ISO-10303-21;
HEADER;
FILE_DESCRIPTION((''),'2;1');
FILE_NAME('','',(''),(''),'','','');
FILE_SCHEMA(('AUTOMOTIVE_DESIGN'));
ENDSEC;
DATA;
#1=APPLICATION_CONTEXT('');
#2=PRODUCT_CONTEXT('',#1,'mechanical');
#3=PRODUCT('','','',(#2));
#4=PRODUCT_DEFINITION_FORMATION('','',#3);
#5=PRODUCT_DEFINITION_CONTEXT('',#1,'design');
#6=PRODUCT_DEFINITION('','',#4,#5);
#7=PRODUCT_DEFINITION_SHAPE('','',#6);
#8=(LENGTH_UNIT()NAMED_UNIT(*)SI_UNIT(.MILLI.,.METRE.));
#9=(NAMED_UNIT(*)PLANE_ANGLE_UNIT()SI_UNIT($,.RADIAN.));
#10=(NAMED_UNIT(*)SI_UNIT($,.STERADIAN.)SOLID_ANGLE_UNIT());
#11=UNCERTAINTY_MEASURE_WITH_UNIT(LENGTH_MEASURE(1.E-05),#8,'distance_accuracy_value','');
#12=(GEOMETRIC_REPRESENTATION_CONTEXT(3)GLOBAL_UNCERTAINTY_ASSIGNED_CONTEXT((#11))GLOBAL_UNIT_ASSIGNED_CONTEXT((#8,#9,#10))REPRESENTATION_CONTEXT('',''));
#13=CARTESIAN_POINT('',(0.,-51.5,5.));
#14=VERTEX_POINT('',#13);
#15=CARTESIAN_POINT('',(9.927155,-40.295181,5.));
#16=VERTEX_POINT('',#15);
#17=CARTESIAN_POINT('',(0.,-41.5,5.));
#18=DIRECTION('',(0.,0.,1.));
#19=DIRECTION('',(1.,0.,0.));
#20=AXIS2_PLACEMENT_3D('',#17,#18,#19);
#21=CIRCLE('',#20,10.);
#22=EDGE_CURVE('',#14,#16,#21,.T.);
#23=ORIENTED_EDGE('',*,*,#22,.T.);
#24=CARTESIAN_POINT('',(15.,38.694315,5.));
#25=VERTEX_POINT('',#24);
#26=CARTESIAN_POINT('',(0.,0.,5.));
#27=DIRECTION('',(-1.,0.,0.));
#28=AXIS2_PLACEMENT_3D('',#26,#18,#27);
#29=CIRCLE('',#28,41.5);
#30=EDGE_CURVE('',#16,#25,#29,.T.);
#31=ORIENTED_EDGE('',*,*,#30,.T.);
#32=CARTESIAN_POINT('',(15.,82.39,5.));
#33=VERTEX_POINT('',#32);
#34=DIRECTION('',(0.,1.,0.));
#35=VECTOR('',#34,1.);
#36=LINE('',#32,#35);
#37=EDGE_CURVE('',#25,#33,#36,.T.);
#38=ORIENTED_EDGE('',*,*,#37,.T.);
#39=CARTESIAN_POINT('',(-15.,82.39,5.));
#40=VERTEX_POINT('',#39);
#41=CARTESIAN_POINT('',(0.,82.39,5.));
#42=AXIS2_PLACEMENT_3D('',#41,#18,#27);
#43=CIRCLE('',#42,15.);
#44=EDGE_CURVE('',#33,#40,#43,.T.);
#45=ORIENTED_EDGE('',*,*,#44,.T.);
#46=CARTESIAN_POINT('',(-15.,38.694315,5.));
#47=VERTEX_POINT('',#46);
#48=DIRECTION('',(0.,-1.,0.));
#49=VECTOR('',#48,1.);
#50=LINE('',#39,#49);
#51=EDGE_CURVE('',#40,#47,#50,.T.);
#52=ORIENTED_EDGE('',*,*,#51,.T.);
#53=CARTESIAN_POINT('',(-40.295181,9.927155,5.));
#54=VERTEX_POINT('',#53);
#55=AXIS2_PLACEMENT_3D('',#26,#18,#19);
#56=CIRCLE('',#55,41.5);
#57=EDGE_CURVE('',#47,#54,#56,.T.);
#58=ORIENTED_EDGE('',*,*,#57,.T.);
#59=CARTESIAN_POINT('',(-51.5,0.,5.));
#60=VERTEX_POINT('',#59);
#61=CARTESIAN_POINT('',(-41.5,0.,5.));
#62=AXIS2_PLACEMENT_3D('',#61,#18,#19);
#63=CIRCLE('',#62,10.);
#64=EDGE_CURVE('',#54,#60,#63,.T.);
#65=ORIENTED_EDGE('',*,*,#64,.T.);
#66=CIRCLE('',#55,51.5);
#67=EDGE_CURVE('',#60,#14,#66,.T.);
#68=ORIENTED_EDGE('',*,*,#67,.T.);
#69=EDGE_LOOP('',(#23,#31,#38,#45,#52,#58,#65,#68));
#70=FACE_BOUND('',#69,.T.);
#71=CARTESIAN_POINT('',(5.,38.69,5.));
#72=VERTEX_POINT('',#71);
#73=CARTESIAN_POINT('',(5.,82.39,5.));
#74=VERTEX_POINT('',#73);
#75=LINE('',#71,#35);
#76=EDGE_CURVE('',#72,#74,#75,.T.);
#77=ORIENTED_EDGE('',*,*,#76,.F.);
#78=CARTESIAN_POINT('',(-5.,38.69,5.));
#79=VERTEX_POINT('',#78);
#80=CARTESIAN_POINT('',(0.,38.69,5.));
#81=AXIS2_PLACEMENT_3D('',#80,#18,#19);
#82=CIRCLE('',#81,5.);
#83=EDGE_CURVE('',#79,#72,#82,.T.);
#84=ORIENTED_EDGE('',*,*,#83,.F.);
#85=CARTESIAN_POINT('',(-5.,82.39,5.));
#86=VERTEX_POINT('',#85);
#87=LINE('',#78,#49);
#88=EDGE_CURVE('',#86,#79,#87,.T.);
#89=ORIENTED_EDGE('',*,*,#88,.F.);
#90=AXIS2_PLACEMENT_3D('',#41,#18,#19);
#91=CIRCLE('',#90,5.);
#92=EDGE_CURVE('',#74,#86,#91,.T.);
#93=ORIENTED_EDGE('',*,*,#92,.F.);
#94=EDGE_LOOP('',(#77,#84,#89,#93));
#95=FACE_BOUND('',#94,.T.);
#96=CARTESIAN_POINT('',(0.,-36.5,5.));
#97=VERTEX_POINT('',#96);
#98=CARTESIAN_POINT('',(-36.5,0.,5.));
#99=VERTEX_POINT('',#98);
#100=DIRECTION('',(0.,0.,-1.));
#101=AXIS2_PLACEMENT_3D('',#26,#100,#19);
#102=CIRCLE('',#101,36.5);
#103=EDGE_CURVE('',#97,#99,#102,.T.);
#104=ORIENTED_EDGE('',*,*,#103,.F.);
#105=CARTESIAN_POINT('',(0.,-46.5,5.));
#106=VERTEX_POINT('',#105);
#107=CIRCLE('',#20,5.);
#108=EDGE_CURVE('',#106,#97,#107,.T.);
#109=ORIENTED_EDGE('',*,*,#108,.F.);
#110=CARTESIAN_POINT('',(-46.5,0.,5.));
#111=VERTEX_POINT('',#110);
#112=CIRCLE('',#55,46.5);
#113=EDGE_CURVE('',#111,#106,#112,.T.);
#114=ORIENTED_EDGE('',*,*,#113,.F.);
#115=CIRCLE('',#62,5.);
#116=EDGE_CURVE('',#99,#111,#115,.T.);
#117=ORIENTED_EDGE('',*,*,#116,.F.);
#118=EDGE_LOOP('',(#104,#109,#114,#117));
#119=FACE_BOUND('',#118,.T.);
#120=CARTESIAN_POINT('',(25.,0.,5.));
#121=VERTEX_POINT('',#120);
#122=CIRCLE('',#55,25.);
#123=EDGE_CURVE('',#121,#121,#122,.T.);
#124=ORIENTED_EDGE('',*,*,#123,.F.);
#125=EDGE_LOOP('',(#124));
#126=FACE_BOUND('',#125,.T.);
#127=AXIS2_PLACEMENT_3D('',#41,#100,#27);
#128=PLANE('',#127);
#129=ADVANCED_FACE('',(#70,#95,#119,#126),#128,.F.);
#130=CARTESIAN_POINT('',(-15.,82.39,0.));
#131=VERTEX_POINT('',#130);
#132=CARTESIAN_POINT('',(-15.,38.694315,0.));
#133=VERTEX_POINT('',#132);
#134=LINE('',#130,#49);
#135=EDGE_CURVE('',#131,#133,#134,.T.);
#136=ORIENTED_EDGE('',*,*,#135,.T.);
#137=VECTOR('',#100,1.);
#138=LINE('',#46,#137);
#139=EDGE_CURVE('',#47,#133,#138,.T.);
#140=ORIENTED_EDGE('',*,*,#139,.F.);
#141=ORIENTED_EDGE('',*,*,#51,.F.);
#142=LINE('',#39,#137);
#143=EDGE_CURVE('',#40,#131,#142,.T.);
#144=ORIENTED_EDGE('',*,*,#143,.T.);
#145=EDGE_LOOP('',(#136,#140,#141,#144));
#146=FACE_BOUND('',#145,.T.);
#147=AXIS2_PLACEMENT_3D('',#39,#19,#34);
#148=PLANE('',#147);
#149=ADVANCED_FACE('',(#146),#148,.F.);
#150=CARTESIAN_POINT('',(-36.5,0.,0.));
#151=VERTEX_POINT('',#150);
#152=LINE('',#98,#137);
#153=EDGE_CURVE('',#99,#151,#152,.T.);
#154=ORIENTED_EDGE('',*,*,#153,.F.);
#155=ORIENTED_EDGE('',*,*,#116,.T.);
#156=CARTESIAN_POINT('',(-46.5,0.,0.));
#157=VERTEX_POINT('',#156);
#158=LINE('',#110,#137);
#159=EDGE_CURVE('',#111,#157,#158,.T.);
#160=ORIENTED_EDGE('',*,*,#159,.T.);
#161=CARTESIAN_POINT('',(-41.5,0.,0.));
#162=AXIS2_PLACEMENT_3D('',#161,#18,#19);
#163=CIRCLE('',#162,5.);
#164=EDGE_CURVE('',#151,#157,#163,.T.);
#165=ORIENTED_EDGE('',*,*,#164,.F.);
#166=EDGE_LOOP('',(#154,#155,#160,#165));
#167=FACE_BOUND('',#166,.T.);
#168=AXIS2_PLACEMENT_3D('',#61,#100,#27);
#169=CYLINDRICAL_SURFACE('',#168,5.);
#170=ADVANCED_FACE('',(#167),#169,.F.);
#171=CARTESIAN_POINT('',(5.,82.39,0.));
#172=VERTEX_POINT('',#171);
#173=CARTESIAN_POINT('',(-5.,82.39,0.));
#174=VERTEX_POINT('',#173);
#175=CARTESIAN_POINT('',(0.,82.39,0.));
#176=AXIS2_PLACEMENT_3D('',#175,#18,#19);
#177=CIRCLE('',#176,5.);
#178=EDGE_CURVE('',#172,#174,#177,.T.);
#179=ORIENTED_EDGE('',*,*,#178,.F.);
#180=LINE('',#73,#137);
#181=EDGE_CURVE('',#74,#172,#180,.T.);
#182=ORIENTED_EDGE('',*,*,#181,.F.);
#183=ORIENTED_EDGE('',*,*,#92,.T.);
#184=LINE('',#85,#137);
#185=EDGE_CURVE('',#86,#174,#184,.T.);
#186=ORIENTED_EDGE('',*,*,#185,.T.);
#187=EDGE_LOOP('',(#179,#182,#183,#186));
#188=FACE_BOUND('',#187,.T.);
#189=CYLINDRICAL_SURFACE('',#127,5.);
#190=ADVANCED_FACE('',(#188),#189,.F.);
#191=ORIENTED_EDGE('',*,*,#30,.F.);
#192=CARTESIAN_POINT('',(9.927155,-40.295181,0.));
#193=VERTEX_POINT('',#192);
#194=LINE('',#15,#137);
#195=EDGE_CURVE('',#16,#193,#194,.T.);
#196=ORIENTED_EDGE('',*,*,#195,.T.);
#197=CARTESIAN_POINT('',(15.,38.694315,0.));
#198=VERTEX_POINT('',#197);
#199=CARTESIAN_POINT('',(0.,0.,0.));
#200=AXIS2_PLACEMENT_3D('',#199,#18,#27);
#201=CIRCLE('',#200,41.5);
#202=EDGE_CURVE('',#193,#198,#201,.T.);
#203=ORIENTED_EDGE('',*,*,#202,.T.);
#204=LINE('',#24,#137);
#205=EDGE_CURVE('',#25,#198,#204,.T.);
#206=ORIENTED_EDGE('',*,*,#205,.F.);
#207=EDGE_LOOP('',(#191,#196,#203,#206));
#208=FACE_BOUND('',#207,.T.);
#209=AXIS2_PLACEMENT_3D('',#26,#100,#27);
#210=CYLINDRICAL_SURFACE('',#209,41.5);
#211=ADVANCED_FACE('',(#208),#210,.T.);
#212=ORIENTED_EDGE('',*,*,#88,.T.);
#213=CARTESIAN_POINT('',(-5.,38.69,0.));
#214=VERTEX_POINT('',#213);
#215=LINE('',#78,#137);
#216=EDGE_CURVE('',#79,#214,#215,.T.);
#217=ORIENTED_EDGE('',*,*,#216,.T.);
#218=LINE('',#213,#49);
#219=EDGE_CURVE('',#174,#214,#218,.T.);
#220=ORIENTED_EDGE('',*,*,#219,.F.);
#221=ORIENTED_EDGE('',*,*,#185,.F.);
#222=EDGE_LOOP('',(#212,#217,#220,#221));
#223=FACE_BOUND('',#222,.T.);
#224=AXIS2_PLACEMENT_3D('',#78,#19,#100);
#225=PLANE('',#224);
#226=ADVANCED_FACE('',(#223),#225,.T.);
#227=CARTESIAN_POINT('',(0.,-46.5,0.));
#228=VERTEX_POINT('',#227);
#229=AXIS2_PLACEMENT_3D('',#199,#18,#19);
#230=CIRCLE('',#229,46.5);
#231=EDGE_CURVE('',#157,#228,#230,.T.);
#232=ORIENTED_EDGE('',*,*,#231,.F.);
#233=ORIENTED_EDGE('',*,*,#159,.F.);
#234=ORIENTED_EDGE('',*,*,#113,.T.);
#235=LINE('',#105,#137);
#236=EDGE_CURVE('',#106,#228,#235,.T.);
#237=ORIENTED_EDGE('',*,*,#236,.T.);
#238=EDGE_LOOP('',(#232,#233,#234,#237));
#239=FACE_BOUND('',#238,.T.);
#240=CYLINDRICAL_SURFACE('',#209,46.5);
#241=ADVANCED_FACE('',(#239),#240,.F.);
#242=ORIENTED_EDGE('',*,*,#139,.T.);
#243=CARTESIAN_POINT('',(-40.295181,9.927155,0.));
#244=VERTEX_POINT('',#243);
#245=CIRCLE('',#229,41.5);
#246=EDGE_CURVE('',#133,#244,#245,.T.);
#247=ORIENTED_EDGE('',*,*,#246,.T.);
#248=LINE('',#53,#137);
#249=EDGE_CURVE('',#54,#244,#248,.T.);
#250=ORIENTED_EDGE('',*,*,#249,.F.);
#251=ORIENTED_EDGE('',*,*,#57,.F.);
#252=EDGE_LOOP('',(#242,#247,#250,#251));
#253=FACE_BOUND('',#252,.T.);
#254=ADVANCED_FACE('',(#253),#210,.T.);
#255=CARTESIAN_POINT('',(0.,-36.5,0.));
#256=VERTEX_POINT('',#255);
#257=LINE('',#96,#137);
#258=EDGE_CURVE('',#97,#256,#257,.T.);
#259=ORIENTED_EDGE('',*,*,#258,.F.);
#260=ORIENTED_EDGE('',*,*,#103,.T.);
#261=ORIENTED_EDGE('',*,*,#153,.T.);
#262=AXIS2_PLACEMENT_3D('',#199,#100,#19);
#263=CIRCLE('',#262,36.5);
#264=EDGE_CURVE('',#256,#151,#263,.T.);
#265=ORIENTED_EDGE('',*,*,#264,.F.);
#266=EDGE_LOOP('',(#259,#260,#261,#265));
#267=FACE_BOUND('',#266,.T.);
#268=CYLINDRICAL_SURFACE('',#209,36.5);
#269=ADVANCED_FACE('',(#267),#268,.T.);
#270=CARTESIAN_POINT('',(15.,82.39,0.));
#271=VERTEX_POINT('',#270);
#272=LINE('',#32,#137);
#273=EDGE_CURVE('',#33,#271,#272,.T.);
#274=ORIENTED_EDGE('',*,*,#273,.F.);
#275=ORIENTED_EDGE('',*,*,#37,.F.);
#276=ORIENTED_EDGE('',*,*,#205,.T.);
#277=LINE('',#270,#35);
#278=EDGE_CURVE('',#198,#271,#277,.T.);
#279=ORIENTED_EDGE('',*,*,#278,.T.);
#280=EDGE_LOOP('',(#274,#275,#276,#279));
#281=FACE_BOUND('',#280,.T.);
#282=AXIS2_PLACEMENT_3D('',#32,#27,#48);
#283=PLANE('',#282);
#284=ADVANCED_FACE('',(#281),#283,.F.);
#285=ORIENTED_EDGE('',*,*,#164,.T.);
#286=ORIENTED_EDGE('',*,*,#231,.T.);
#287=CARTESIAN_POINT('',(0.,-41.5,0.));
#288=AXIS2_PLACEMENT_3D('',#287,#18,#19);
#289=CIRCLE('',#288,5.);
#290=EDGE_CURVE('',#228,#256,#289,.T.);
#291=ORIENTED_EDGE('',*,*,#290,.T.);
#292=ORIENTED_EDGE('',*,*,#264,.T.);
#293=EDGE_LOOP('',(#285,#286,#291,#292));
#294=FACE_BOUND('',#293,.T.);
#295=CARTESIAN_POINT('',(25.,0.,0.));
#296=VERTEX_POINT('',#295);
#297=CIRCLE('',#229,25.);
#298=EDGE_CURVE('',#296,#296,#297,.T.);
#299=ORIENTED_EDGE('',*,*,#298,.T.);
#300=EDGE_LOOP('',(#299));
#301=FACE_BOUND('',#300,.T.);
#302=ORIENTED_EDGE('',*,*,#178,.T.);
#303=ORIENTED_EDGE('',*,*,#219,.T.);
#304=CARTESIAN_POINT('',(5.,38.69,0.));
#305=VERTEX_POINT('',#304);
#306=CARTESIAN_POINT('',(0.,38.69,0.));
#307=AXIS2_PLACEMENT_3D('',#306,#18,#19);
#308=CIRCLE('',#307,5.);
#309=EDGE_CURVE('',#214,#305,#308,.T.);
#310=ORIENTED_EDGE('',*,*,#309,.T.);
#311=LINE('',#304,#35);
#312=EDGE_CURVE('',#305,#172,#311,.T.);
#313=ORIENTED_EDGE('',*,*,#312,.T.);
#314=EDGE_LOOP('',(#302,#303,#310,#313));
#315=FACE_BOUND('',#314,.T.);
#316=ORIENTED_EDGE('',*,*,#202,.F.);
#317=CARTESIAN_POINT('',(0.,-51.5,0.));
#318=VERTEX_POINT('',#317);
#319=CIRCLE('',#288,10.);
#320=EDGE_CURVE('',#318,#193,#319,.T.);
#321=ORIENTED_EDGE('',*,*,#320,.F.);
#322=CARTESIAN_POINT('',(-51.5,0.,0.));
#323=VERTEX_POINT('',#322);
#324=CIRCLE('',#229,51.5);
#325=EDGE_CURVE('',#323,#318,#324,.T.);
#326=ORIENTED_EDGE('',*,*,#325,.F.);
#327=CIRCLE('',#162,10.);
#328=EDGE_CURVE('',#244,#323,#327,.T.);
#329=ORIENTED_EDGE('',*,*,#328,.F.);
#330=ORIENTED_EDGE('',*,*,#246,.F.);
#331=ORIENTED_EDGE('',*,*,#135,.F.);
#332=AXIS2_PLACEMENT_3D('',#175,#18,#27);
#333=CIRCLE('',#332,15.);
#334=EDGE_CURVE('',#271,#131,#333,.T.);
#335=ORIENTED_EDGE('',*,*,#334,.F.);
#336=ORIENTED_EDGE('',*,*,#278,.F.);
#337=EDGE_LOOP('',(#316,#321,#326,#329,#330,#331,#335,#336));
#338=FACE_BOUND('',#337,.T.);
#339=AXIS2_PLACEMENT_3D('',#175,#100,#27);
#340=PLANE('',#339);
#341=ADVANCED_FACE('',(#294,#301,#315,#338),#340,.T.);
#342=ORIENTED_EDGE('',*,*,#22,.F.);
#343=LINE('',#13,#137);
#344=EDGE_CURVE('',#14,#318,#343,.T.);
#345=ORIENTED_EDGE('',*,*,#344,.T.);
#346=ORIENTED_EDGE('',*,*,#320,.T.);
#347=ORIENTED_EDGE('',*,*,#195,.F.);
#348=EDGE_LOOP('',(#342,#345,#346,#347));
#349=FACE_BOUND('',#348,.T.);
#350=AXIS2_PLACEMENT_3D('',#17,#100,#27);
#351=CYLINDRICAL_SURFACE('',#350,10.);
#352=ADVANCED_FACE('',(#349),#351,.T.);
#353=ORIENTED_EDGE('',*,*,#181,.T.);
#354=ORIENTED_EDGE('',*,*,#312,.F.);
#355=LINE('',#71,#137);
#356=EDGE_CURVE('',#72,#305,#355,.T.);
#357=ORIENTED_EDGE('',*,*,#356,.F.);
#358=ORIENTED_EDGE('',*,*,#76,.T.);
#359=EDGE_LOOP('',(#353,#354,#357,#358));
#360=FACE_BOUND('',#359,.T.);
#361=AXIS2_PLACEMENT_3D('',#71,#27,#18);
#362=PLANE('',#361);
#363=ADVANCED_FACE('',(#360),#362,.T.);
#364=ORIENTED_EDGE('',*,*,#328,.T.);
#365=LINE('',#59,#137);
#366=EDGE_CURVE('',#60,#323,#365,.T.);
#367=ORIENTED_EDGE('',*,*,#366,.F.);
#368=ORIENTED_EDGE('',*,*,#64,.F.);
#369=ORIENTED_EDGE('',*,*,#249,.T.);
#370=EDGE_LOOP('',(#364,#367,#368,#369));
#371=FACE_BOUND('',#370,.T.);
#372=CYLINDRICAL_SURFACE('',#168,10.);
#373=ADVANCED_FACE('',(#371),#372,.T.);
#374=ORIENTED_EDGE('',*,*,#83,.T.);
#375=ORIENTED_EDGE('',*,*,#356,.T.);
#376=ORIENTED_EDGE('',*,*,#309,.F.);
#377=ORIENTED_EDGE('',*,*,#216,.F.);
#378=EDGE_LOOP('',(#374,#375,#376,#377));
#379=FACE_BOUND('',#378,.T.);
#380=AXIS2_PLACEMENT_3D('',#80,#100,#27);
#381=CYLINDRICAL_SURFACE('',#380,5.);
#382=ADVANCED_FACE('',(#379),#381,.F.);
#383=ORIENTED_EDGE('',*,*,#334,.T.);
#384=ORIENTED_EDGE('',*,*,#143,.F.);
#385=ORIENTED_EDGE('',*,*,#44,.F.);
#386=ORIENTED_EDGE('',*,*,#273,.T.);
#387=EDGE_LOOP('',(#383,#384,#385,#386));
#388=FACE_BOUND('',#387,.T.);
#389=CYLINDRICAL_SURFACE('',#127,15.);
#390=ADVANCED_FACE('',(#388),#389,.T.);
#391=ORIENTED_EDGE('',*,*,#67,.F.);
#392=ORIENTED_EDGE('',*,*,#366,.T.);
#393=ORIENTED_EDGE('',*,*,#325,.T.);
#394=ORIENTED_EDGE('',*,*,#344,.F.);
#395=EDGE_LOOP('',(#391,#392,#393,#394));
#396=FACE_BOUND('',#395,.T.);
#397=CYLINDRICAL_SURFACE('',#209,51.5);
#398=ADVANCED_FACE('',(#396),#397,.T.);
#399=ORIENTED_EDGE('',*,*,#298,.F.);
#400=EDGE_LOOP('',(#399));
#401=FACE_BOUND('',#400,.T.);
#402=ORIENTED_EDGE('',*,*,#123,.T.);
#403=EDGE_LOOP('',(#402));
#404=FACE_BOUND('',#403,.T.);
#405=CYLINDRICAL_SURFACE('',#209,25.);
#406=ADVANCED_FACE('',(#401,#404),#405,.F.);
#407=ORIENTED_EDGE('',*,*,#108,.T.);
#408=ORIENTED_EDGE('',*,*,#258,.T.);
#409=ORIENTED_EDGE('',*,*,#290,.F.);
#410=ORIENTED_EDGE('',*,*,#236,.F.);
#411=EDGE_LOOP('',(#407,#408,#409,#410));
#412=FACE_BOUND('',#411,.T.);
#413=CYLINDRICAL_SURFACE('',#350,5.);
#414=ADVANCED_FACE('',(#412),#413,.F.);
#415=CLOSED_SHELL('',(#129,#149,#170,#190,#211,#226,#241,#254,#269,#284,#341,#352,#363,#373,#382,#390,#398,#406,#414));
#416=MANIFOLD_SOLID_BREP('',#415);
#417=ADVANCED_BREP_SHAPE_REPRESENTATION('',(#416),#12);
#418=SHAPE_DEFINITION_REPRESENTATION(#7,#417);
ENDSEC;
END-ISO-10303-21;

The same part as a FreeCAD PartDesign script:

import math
import FreeCAD as App
import Part
import Sketcher

V = App.Vector

doc = App.newDocument("Part")
body = doc.addObject("PartDesign::Body", "Body")

# Sketch on XY plane
sketch1 = body.newObject("Sketcher::SketchObject", "Sketch")
sketch1.AttachmentSupport = (doc.getObject("XY_Plane"), [""])
sketch1.MapMode = "FlatFace"
sketch1.addGeometry(Part.LineSegment(V(15, 38.694315, 0), V(15, 82.39, 0)), False)
sketch1.addGeometry(Part.ArcOfCircle(Part.Circle(V(0, 82.39, 0), V(0, 0, 1), 15), math.radians(0), math.radians(180)), False)
sketch1.addGeometry(Part.LineSegment(V(-15, 82.39, 0), V(-15, 38.694315, 0)), False)
sketch1.addGeometry(Part.ArcOfCircle(Part.Circle(V(0, 0, 0), V(0, 0, 1), 41.5), math.radians(111.189013), math.radians(166.160166)), False)
sketch1.addGeometry(Part.ArcOfCircle(Part.Circle(V(-41.5, 0, 0), V(0, 0, 1), 10), math.radians(83.080083), math.radians(180)), False)
sketch1.addGeometry(Part.ArcOfCircle(Part.Circle(V(0, 0, 0), V(0, 0, 1), 51.5), math.radians(180), math.radians(270)), False)
sketch1.addGeometry(Part.ArcOfCircle(Part.Circle(V(0, -41.5, 0), V(0, 0, 1), 10), math.radians(-90), math.radians(6.919917)), False)
sketch1.addGeometry(Part.ArcOfCircle(Part.Circle(V(0, 0, 0), V(0, 0, 1), 41.5), math.radians(-76.160166), math.radians(68.810987)), False)
sketch1.addGeometry(Part.Circle(V(0, 0, 0), V(0, 0, 1), 25), False)
sketch1.addGeometry(Part.ArcOfCircle(Part.Circle(V(-41.5, 0, 0), V(0, 0, 1), 5), math.radians(0), math.radians(180)), False)
sketch1.addGeometry(Part.ArcOfCircle(Part.Circle(V(0, 0, 0), V(0, 0, 1), 36.5), math.radians(-180), math.radians(-90)), False)
sketch1.addGeometry(Part.ArcOfCircle(Part.Circle(V(0, -41.5, 0), V(0, 0, 1), 5), math.radians(-90), math.radians(90)), False)
sketch1.addGeometry(Part.ArcOfCircle(Part.Circle(V(0, 0, 0), V(0, 0, 1), 46.5), math.radians(-180), math.radians(-90)), False)
sketch1.addGeometry(Part.LineSegment(V(-5, 38.69, 0), V(-5, 82.39, 0)), False)
sketch1.addGeometry(Part.ArcOfCircle(Part.Circle(V(0, 82.39, 0), V(0, 0, 1), 5), math.radians(0), math.radians(180)), False)
sketch1.addGeometry(Part.LineSegment(V(5, 82.39, 0), V(5, 38.69, 0)), False)
sketch1.addGeometry(Part.ArcOfCircle(Part.Circle(V(0, 38.69, 0), V(0, 0, 1), 5), math.radians(180), math.radians(360)), False)
sketch1.addConstraint(Sketcher.Constraint("Tangent", 0, 2, 1, 1))
sketch1.addConstraint(Sketcher.Constraint("Tangent", 1, 2, 2, 1))
sketch1.addConstraint(Sketcher.Constraint("Coincident", 2, 2, 3, 1))
sketch1.addConstraint(Sketcher.Constraint("Coincident", 3, 2, 4, 1))
sketch1.addConstraint(Sketcher.Constraint("Tangent", 4, 2, 5, 1))
sketch1.addConstraint(Sketcher.Constraint("Tangent", 5, 2, 6, 1))
sketch1.addConstraint(Sketcher.Constraint("Coincident", 6, 2, 7, 1))
sketch1.addConstraint(Sketcher.Constraint("Coincident", 7, 2, 0, 1))
sketch1.addConstraint(Sketcher.Constraint("Tangent", 9, 1, 10, 1))
sketch1.addConstraint(Sketcher.Constraint("Tangent", 10, 2, 11, 2))
sketch1.addConstraint(Sketcher.Constraint("Tangent", 11, 1, 12, 2))
sketch1.addConstraint(Sketcher.Constraint("Tangent", 12, 1, 9, 2))
sketch1.addConstraint(Sketcher.Constraint("Tangent", 13, 2, 14, 2))
sketch1.addConstraint(Sketcher.Constraint("Tangent", 14, 1, 15, 1))
sketch1.addConstraint(Sketcher.Constraint("Tangent", 15, 2, 16, 2))
sketch1.addConstraint(Sketcher.Constraint("Tangent", 16, 1, 13, 1))
sketch1.addConstraint(Sketcher.Constraint("Vertical", 0))
sketch1.addConstraint(Sketcher.Constraint("Vertical", 2))
sketch1.addConstraint(Sketcher.Constraint("Vertical", 13))
sketch1.addConstraint(Sketcher.Constraint("Vertical", 15))
sketch1.addConstraint(Sketcher.Constraint("Coincident", 3, 3, -1, 1))
sketch1.addConstraint(Sketcher.Constraint("Coincident", 5, 3, -1, 1))
sketch1.addConstraint(Sketcher.Constraint("Coincident", 7, 3, -1, 1))
sketch1.addConstraint(Sketcher.Constraint("Coincident", 8, 3, -1, 1))
sketch1.addConstraint(Sketcher.Constraint("Coincident", 10, 3, -1, 1))
sketch1.addConstraint(Sketcher.Constraint("Coincident", 12, 3, -1, 1))
sketch1.addConstraint(Sketcher.Constraint("Coincident", 9, 3, 4, 3))
sketch1.addConstraint(Sketcher.Constraint("Coincident", 11, 3, 6, 3))
sketch1.addConstraint(Sketcher.Constraint("Coincident", 14, 3, 1, 3))
sketch1.addConstraint(Sketcher.Constraint("Equal", 3, 7))
sketch1.addConstraint(Sketcher.Constraint("Equal", 11, 14))
sketch1.addConstraint(Sketcher.Constraint("PointOnObject", 1, 3, -2))
sketch1.addConstraint(Sketcher.Constraint("PointOnObject", 4, 3, -1))
sketch1.addConstraint(Sketcher.Constraint("PointOnObject", 6, 3, -2))
sketch1.addConstraint(Sketcher.Constraint("Diameter", 8, 50.0))
sketch1.addConstraint(Sketcher.Constraint("Radius", 1, 15.0))
sketch1.addConstraint(Sketcher.Constraint("Radius", 4, 10.0))
sketch1.addConstraint(Sketcher.Constraint("Radius", 9, 5.0))
sketch1.addConstraint(Sketcher.Constraint("Radius", 3, 41.5))
sketch1.addConstraint(Sketcher.Constraint("Radius", 5, 51.5))
sketch1.addConstraint(Sketcher.Constraint("DistanceY", 13, 1, 13, 2, 43.7))
sketch1.addConstraint(Sketcher.Constraint("DistanceY", -1, 1, 1, 3, 82.39))
pad1 = body.newObject("PartDesign::Pad", "Pad")
pad1.Profile = sketch1
pad1.Length = 5

doc.recompute()
